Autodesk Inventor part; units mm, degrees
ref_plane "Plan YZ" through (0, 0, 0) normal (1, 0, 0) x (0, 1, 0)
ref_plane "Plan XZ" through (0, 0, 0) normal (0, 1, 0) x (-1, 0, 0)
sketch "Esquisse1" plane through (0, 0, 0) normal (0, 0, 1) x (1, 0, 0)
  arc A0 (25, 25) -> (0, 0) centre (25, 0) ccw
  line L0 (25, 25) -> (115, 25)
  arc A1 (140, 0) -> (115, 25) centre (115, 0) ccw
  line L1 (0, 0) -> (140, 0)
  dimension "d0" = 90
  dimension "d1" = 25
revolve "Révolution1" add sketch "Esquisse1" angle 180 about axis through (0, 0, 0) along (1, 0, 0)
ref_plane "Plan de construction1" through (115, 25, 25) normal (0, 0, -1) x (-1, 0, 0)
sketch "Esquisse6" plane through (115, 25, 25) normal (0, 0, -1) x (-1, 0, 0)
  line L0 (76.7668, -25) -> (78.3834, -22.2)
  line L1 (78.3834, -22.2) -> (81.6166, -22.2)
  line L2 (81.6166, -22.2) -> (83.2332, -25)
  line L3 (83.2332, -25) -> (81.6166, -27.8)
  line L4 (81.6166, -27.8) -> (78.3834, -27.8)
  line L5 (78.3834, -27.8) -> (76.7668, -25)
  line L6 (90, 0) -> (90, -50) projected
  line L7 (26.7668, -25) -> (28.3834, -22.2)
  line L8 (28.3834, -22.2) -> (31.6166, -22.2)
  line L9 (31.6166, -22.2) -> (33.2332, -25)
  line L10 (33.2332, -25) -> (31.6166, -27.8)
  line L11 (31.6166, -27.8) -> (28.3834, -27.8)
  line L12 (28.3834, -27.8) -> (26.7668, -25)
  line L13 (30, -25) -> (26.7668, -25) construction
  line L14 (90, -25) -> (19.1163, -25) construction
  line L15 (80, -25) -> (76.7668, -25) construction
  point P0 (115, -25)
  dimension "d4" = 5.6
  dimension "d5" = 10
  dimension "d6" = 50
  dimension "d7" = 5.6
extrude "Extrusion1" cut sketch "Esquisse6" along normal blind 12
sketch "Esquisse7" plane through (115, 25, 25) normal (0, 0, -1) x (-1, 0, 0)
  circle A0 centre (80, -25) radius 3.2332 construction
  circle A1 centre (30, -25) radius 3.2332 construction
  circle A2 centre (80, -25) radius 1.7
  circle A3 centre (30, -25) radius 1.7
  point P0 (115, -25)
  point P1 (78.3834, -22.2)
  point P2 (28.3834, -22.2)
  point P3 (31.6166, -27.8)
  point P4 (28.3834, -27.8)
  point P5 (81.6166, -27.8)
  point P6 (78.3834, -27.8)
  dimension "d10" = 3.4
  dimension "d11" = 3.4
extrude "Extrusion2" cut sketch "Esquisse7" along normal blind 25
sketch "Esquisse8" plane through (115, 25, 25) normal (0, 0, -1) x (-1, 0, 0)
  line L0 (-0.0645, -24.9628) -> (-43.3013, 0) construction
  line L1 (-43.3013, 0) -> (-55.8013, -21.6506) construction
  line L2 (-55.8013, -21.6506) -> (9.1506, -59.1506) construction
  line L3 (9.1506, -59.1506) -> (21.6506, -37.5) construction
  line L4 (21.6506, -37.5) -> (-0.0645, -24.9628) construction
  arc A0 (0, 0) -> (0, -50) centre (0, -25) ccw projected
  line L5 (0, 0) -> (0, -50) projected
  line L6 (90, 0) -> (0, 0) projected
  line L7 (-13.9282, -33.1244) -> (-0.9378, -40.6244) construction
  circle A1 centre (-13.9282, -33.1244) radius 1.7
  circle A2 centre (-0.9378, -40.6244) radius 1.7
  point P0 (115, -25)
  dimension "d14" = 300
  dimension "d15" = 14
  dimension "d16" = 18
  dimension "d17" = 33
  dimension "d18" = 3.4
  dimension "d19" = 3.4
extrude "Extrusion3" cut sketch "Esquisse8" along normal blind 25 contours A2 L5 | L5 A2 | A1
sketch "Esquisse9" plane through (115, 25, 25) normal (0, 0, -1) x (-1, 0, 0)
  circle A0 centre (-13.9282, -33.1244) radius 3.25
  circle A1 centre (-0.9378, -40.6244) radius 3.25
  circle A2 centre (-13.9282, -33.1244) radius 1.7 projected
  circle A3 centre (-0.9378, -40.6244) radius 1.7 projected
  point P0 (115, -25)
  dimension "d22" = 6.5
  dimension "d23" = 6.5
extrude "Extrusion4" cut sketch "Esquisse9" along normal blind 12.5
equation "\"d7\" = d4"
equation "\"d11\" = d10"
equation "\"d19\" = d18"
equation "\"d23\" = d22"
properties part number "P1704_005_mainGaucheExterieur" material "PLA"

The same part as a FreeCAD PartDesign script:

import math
import FreeCAD as App
import Part
import Sketcher
from FreeCAD import Vector
Q = App.Units.Quantity


def add_polygon(sketch, points):
    """Adds a closed chain of lines whose ends are joined by coincident constraints."""
    first, n = sketch.GeometryCount, len(points)
    for a, b in zip(points, points[1:] + points[:1]):
        sketch.addGeometry(Part.LineSegment(App.Vector(*a, 0), App.Vector(*b, 0)), False)
    for i in range(n):
        sketch.addConstraint(Sketcher.Constraint("Coincident", first + i, 2, first + (i + 1) % n, 1))

doc = App.newDocument("Part")
body = doc.addObject("PartDesign::Body", "Body")

# Sketch on XY plane
sketch1 = doc.addObject("Sketcher::SketchObject", "Sketch")
body.addObject(sketch1)
sketch1.AttachmentSupport = (doc.XY_Plane, [""])
sketch1.MapMode = "FlatFace"
sketch1.addGeometry(Part.LineSegment(Vector(115, 25, 0), Vector(25, 25, 0)), False)
sketch1.addGeometry(Part.ArcOfCircle(Part.Circle(Vector(25, 0, 0), Vector(0, 0, 1), 25), math.radians(90), math.radians(180)), False)
sketch1.addGeometry(Part.LineSegment(Vector(0, 0, 0), Vector(140, 0, 0)), False)
sketch1.addGeometry(Part.ArcOfCircle(Part.Circle(Vector(115, 0, 0), Vector(0, 0, 1), 25), math.radians(0), math.radians(90)), False)
sketch1.addConstraint(Sketcher.Constraint("Tangent", 0, 2, 1, 1))
sketch1.addConstraint(Sketcher.Constraint("Coincident", 1, 2, 2, 1))
sketch1.addConstraint(Sketcher.Constraint("Coincident", 2, 2, 3, 1))
sketch1.addConstraint(Sketcher.Constraint("Tangent", 3, 2, 0, 1))
sketch1.addConstraint(Sketcher.Constraint("Horizontal", 0))
sketch1.addConstraint(Sketcher.Constraint("Horizontal", 2))
sketch1.addConstraint(Sketcher.Constraint("Coincident", 1, 2, -1, 1))
sketch1.addConstraint(Sketcher.Constraint("Equal", 1, 3))
sketch1.addConstraint(Sketcher.Constraint("PointOnObject", 1, 3, -1))
sketch1.addConstraint(Sketcher.Constraint("Radius", 1, Q("25 mm")))
sketch1.addConstraint(Sketcher.Constraint("DistanceX", 0, 2, 0, 1, Q("90 mm")))
revolution = doc.addObject("PartDesign::Revolution", "Revolution")
body.addObject(revolution)
revolution.Profile = sketch1
revolution.ReferenceAxis = (sketch1, ["H_Axis"])
revolution.Angle = 180

# Sketch on XY plane
sketch2 = doc.addObject("Sketcher::SketchObject", "Sketch001")
body.addObject(sketch2)
sketch2.AttachmentSupport = (doc.XY_Plane, [""])
sketch2.MapMode = "FlatFace"
sketch2.AttachmentOffset = App.Placement(Vector(0, 0, 25), App.Rotation())
add_polygon(sketch2, [(36.6, 2.8), (38.2, 0), (36.6, -2.8), (33.4, -2.8), (31.8, 0), (33.4, 2.8)])  # lines 0-5
add_polygon(sketch2, [(86.6, 2.8), (88.2, 0), (86.6, -2.8), (83.4, -2.8), (81.8, 0), (83.4, 2.8)])  # lines 6-11
sketch2.addConstraint(Sketcher.Constraint("Horizontal", 2))
sketch2.addConstraint(Sketcher.Constraint("Horizontal", 5))
sketch2.addConstraint(Sketcher.Constraint("Horizontal", 8))
sketch2.addConstraint(Sketcher.Constraint("Horizontal", 11))
sketch2.addConstraint(Sketcher.Constraint("Symmetric", 2, 2, 4, 2, -1))
sketch2.addConstraint(Sketcher.Constraint("Symmetric", 8, 2, 10, 2, -1))
sketch2.addConstraint(Sketcher.Constraint("PointOnObject", 0, 2, -1))
sketch2.addConstraint(Sketcher.Constraint("PointOnObject", 3, 2, -1))
sketch2.addConstraint(Sketcher.Constraint("PointOnObject", 6, 2, -1))
sketch2.addConstraint(Sketcher.Constraint("PointOnObject", 9, 2, -1))
sketch2.addConstraint(Sketcher.Constraint("Parallel", 0, 3))
sketch2.addConstraint(Sketcher.Constraint("Parallel", 1, 4))
sketch2.addConstraint(Sketcher.Constraint("Parallel", 3, 6))
sketch2.addConstraint(Sketcher.Constraint("Parallel", 4, 7))
sketch2.addConstraint(Sketcher.Constraint("Parallel", 6, 9))
sketch2.addConstraint(Sketcher.Constraint("Horizontal", 2, 2, 7, 2))
sketch2.addConstraint(Sketcher.Constraint("Equal", 5, 8))
sketch2.addConstraint(Sketcher.Constraint("DistanceX", 0, 2, 6, 2, Q("50 mm")))
sketch2.addConstraint(Sketcher.Constraint("DistanceY", 2, 2, 4, 2, Q("5.6 mm")))
sketch2.addConstraint(Sketcher.Constraint("Angle", 0, Q("-59.9997 deg")))
sketch2.addConstraint(Sketcher.Constraint("DistanceX", 2, 2, 2, 1, Q("3.2332 mm")))
sketch2.addConstraint(Sketcher.Constraint("DistanceX", -1, 1, 0, 2, Q("38.2332 mm")))
pocket1 = doc.addObject("PartDesign::Pocket", "Pocket")
body.addObject(pocket1)
pocket1.Profile = sketch2
pocket1.Length = 12

# Sketch on XY plane
sketch3 = doc.addObject("Sketcher::SketchObject", "Sketch002")
body.addObject(sketch3)
sketch3.AttachmentSupport = (doc.XY_Plane, [""])
sketch3.MapMode = "FlatFace"
sketch3.AttachmentOffset = App.Placement(Vector(0, 0, 25), App.Rotation())
sketch3.addGeometry(Part.Circle(Vector(35, 0, 0), Vector(0, 0, 1), 1.7), False)
sketch3.addGeometry(Part.Circle(Vector(85, 0, 0), Vector(0, 0, 1), 1.7), False)
sketch3.addConstraint(Sketcher.Constraint("Equal", 0, 1))
sketch3.addConstraint(Sketcher.Constraint("PointOnObject", 0, 3, -1))
sketch3.addConstraint(Sketcher.Constraint("PointOnObject", 1, 3, -1))
sketch3.addConstraint(Sketcher.Constraint("Diameter", 0, Q("3.4 mm")))
sketch3.addConstraint(Sketcher.Constraint("DistanceX", -1, 1, 0, 3, Q("35 mm")))
sketch3.addConstraint(Sketcher.Constraint("DistanceX", -1, 1, 1, 3, Q("85 mm")))
pocket2 = doc.addObject("PartDesign::Pocket", "Pocket001")
body.addObject(pocket2)
pocket2.Profile = sketch3
pocket2.Length = 25

# Sketch on XY plane
sketch4 = doc.addObject("Sketcher::SketchObject", "Sketch003")
body.addObject(sketch4)
sketch4.AttachmentSupport = (doc.XY_Plane, [""])
sketch4.MapMode = "FlatFace"
sketch4.AttachmentOffset = App.Placement(Vector(0, 0, 25), App.Rotation())
sketch4.addGeometry(Part.Circle(Vector(115.9, -15.6, 0), Vector(0, 0, 1), 1.7), False)
sketch4.addGeometry(Part.Circle(Vector(128.9, -8.1, 0), Vector(0, 0, 1), 1.7), False)
sketch4.addConstraint(Sketcher.Constraint("Equal", 0, 1))
sketch4.addConstraint(Sketcher.Constraint("Diameter", 0, Q("3.4 mm")))
sketch4.addConstraint(Sketcher.Constraint("DistanceY", 0, 3, 1, 3, Q("7.5 mm")))
sketch4.addConstraint(Sketcher.Constraint("DistanceX", -1, 1, 0, 3, Q("115.9378 mm")))
sketch4.addConstraint(Sketcher.Constraint("DistanceY", 0, 3, -1, 1, Q("15.6244 mm")))
sketch4.addConstraint(Sketcher.Constraint("DistanceX", -1, 1, 1, 3, Q("128.9282 mm")))
pocket3 = doc.addObject("PartDesign::Pocket", "Pocket002")
body.addObject(pocket3)
pocket3.Profile = sketch4
pocket3.Length = 25

# Sketch on XY plane
sketch5 = doc.addObject("Sketcher::SketchObject", "Sketch004")
body.addObject(sketch5)
sketch5.AttachmentSupport = (doc.XY_Plane, [""])
sketch5.MapMode = "FlatFace"
sketch5.AttachmentOffset = App.Placement(Vector(0, 0, 25), App.Rotation())
sketch5.addGeometry(Part.Circle(Vector(128.9, -8.1, 0), Vector(0, 0, 1), 3.2), False)
sketch5.addGeometry(Part.Circle(Vector(128.9, -8.1, 0), Vector(0, 0, 1), 1.7), False)
sketch5.addGeometry(Part.Circle(Vector(115.9, -15.6, 0), Vector(0, 0, 1), 3.2), False)
sketch5.addGeometry(Part.Circle(Vector(115.9, -15.6, 0), Vector(0, 0, 1), 1.7), False)
sketch5.addConstraint(Sketcher.Constraint("Coincident", 1, 3, 0, 3))
sketch5.addConstraint(Sketcher.Constraint("Coincident", 3, 3, 2, 3))
sketch5.addConstraint(Sketcher.Constraint("Equal", 0, 2))
sketch5.addConstraint(Sketcher.Constraint("Equal", 1, 3))
sketch5.addConstraint(Sketcher.Constraint("Diameter", 0, Q("6.5 mm")))
sketch5.addConstraint(Sketcher.Constraint("Diameter", 1, Q("3.4 mm")))
sketch5.addConstraint(Sketcher.Constraint("DistanceY", 2, 3, 0, 3, Q("7.5 mm")))
sketch5.addConstraint(Sketcher.Constraint("DistanceX", -1, 1, 0, 3, Q("128.9282 mm")))
sketch5.addConstraint(Sketcher.Constraint("DistanceY", 0, 3, -1, 1, Q("8.1244 mm")))
sketch5.addConstraint(Sketcher.Constraint("DistanceX", -1, 1, 2, 3, Q("115.9378 mm")))
pocket4 = doc.addObject("PartDesign::Pocket", "Pocket003")
body.addObject(pocket4)
pocket4.Profile = sketch5
pocket4.Length = 12.5

doc.recompute()
